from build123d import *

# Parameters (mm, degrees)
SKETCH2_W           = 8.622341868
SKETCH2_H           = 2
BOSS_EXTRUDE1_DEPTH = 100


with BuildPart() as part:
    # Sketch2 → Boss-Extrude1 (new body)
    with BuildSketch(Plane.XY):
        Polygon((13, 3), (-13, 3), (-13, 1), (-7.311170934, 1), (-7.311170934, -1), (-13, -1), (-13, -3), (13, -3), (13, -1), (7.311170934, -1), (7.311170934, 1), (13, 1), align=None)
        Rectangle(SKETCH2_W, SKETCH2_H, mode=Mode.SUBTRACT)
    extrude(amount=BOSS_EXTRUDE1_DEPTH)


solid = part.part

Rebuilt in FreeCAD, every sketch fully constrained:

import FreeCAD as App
import Part
import Sketcher

V = App.Vector

doc = App.newDocument("Part")
body = doc.addObject("PartDesign::Body", "Body")

# Sketch on XY plane
sketch1 = body.newObject("Sketcher::SketchObject", "Sketch")
sketch1.AttachmentSupport = (doc.getObject("XY_Plane"), [""])
sketch1.MapMode = "FlatFace"
sketch1.addGeometry([
    Part.LineSegment(V(13, 3, 0), V(-13, 3, 0)),  # 0
    Part.LineSegment(V(-13, 3, 0), V(-13, 1, 0)),  # 1
    Part.LineSegment(V(-13, 1, 0), V(-7.3, 1, 0)),  # 2
    Part.LineSegment(V(-7.3, 1, 0), V(-7.3, -1, 0)),  # 3
    Part.LineSegment(V(-7.3, -1, 0), V(-13, -1, 0)),  # 4
    Part.LineSegment(V(-13, -1, 0), V(-13, -3, 0)),  # 5
    Part.LineSegment(V(-13, -3, 0), V(13, -3, 0)),  # 6
    Part.LineSegment(V(13, -3, 0), V(13, -1, 0)),  # 7
    Part.LineSegment(V(13, -1, 0), V(7.3, -1, 0)),  # 8
    Part.LineSegment(V(7.3, -1, 0), V(7.3, 1, 0)),  # 9
    Part.LineSegment(V(7.3, 1, 0), V(13, 1, 0)),  # 10
    Part.LineSegment(V(13, 1, 0), V(13, 3, 0)),  # 11
    Part.LineSegment(V(4.3, -1, 0), V(-4.3, -1, 0)),  # 12
    Part.LineSegment(V(-4.3, -1, 0), V(-4.3, 1, 0)),  # 13
    Part.LineSegment(V(-4.3, 1, 0), V(4.3, 1, 0)),  # 14
    Part.LineSegment(V(4.3, 1, 0), V(4.3, -1, 0)),  # 15
], False)
sketch1.addConstraint([
    Sketcher.Constraint("Coincident", 0, 2, 1, 1),
    Sketcher.Constraint("Coincident", 1, 2, 2, 1),
    Sketcher.Constraint("Coincident", 2, 2, 3, 1),
    Sketcher.Constraint("Coincident", 3, 2, 4, 1),
    Sketcher.Constraint("Coincident", 4, 2, 5, 1),
    Sketcher.Constraint("Coincident", 5, 2, 6, 1),
    Sketcher.Constraint("Coincident", 6, 2, 7, 1),
    Sketcher.Constraint("Coincident", 7, 2, 8, 1),
    Sketcher.Constraint("Coincident", 8, 2, 9, 1),
    Sketcher.Constraint("Coincident", 9, 2, 10, 1),
    Sketcher.Constraint("Coincident", 10, 2, 11, 1),
    Sketcher.Constraint("Coincident", 11, 2, 0, 1),
    Sketcher.Constraint("Coincident", 12, 2, 13, 1),
    Sketcher.Constraint("Coincident", 13, 2, 14, 1),
    Sketcher.Constraint("Coincident", 14, 2, 15, 1),
    Sketcher.Constraint("Coincident", 15, 2, 12, 1),
    Sketcher.Constraint("Horizontal", 0),
    Sketcher.Constraint("Vertical", 1),
    Sketcher.Constraint("Horizontal", 2),
    Sketcher.Constraint("Vertical", 3),
    Sketcher.Constraint("Horizontal", 4),
    Sketcher.Constraint("Vertical", 5),
    Sketcher.Constraint("Horizontal", 6),
    Sketcher.Constraint("Vertical", 7),
    Sketcher.Constraint("Horizontal", 8),
    Sketcher.Constraint("Vertical", 9),
    Sketcher.Constraint("Horizontal", 10),
    Sketcher.Constraint("Vertical", 11),
    Sketcher.Constraint("Horizontal", 12),
    Sketcher.Constraint("Vertical", 13),
    Sketcher.Constraint("Horizontal", 14),
    Sketcher.Constraint("Vertical", 15),
    Sketcher.Constraint("Symmetric", 0, 2, 6, 2, -1, 1),
    Sketcher.Constraint("Symmetric", 2, 2, 8, 2, -1, 1),
    Sketcher.Constraint("Symmetric", 4, 2, 10, 2, -1, 1),
    Sketcher.Constraint("Symmetric", 12, 2, 14, 2, -1, 1),
    Sketcher.Constraint("Symmetric", 4, 2, 7, 2, -2),
    Sketcher.Constraint("Horizontal", 8, 2, 12, 2),
    Sketcher.Constraint("Equal", 1, 3),
    Sketcher.Constraint("DistanceX", 0, 2, 0, 1, 26.0),
    Sketcher.Constraint("DistanceY", 1, 2, 1, 1, 2.0),
    Sketcher.Constraint("DistanceX", 3, 2, 12, 2, 3.0),
    Sketcher.Constraint("DistanceX", 2, 1, 2, 2, 5.688829),
])
pad1 = body.newObject("PartDesign::Pad", "Pad")
pad1.Profile = sketch1
pad1.Length = 100

doc.recompute()
